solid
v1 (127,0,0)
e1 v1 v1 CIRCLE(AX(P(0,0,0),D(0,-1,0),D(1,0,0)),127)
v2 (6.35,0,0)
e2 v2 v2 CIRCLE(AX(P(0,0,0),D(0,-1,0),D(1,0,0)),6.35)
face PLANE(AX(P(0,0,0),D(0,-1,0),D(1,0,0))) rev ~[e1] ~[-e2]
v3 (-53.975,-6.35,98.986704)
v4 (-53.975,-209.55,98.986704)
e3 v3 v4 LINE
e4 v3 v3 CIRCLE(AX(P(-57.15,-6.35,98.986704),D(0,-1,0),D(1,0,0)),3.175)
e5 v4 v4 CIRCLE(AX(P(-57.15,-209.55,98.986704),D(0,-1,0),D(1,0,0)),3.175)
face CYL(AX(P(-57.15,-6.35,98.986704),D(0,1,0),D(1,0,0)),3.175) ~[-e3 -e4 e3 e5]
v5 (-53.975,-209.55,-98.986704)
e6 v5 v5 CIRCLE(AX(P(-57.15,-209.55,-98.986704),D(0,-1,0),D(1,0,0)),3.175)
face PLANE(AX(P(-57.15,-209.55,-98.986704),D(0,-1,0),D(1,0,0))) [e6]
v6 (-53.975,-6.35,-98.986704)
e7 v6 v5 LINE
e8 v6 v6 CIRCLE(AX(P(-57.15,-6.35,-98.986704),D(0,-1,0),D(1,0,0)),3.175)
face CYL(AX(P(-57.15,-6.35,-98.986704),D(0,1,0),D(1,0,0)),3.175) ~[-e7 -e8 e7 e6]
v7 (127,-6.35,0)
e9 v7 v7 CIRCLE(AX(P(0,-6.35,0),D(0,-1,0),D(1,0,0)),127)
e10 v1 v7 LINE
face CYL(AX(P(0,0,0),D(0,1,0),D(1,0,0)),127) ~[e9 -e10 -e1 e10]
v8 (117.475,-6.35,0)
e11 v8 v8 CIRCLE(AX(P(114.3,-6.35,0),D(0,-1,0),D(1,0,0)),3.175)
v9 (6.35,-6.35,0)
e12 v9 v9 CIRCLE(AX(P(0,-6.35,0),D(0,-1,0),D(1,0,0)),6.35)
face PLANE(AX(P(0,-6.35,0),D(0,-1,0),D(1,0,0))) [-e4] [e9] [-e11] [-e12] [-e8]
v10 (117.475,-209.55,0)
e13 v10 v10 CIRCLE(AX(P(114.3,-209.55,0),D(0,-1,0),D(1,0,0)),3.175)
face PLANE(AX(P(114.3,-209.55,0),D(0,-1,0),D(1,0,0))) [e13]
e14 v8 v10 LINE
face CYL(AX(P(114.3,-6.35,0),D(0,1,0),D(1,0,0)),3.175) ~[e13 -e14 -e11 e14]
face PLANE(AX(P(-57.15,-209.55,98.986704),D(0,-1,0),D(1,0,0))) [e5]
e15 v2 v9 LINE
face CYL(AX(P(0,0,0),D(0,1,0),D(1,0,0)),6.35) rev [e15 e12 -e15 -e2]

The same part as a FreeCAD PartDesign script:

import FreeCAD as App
import Part
import Sketcher
from FreeCAD import Vector
Q = App.Units.Quantity

doc = App.newDocument("Part")
body = doc.addObject("PartDesign::Body", "Body")

# Sketch on XZ plane
sketch1 = doc.addObject("Sketcher::SketchObject", "Sketch")
body.addObject(sketch1)
sketch1.AttachmentSupport = (doc.XZ_Plane, [""])
sketch1.MapMode = "FlatFace"
sketch1.addGeometry([
    Part.Circle(Vector(0, 0, 0), Vector(0, 0, 1), 127),
    Part.Circle(Vector(0, 0, 0), Vector(0, 0, 1), 6),
], False)
sketch1.addConstraint([
    Sketcher.Constraint("Coincident", 0, 3, -1, 1),
    Sketcher.Constraint("Coincident", 1, 3, -1, 1),
    Sketcher.Constraint("Diameter", 0, Q("10 in")),
    Sketcher.Constraint("Diameter", 1, Q("0.5 in")),
])
pad1 = doc.addObject("PartDesign::Pad", "Pad")
body.addObject(pad1)
pad1.Profile = sketch1
pad1.Length = Q("0.25 in")

# Sketch on XZ plane
sketch2 = doc.addObject("Sketcher::SketchObject", "Sketch001")
body.addObject(sketch2)
sketch2.AttachmentSupport = (doc.XZ_Plane, [""])
sketch2.MapMode = "FlatFace"
sketch2.AttachmentOffset = App.Placement(Vector(0, 0, 0.25 * 25.4), App.Rotation())
sketch2.addGeometry([
    Part.Circle(Vector(114.3, 0, 0), Vector(0, 0, 1), 3.2),
    Part.Circle(Vector(-57.1, 99, 0), Vector(0, 0, 1), 3.2),
    Part.Circle(Vector(-57.1, -99, 0), Vector(0, 0, 1), 3.2),
], False)
sketch2.addConstraint([
    Sketcher.Constraint("Equal", 0, 1),
    Sketcher.Constraint("Equal", 1, 2),
    Sketcher.Constraint("Symmetric", 1, 3, 2, 3, -1),
    Sketcher.Constraint("PointOnObject", 0, 3, -1),
    Sketcher.Constraint("Diameter", 0, Q("0.25 in")),
    Sketcher.Constraint("DistanceX", -1, 1, 0, 3, Q("4.5 in")),
    Sketcher.Constraint("DistanceX", 1, 3, -1, 1, Q("2.25 in")),
    Sketcher.Constraint("DistanceY", 2, 3, 1, 3, Q("197.973408 mm")),
])
pad2 = doc.addObject("PartDesign::Pad", "Pad001")
body.addObject(pad2)
pad2.Profile = sketch2
pad2.Length = Q("8 in")

doc.recompute()
